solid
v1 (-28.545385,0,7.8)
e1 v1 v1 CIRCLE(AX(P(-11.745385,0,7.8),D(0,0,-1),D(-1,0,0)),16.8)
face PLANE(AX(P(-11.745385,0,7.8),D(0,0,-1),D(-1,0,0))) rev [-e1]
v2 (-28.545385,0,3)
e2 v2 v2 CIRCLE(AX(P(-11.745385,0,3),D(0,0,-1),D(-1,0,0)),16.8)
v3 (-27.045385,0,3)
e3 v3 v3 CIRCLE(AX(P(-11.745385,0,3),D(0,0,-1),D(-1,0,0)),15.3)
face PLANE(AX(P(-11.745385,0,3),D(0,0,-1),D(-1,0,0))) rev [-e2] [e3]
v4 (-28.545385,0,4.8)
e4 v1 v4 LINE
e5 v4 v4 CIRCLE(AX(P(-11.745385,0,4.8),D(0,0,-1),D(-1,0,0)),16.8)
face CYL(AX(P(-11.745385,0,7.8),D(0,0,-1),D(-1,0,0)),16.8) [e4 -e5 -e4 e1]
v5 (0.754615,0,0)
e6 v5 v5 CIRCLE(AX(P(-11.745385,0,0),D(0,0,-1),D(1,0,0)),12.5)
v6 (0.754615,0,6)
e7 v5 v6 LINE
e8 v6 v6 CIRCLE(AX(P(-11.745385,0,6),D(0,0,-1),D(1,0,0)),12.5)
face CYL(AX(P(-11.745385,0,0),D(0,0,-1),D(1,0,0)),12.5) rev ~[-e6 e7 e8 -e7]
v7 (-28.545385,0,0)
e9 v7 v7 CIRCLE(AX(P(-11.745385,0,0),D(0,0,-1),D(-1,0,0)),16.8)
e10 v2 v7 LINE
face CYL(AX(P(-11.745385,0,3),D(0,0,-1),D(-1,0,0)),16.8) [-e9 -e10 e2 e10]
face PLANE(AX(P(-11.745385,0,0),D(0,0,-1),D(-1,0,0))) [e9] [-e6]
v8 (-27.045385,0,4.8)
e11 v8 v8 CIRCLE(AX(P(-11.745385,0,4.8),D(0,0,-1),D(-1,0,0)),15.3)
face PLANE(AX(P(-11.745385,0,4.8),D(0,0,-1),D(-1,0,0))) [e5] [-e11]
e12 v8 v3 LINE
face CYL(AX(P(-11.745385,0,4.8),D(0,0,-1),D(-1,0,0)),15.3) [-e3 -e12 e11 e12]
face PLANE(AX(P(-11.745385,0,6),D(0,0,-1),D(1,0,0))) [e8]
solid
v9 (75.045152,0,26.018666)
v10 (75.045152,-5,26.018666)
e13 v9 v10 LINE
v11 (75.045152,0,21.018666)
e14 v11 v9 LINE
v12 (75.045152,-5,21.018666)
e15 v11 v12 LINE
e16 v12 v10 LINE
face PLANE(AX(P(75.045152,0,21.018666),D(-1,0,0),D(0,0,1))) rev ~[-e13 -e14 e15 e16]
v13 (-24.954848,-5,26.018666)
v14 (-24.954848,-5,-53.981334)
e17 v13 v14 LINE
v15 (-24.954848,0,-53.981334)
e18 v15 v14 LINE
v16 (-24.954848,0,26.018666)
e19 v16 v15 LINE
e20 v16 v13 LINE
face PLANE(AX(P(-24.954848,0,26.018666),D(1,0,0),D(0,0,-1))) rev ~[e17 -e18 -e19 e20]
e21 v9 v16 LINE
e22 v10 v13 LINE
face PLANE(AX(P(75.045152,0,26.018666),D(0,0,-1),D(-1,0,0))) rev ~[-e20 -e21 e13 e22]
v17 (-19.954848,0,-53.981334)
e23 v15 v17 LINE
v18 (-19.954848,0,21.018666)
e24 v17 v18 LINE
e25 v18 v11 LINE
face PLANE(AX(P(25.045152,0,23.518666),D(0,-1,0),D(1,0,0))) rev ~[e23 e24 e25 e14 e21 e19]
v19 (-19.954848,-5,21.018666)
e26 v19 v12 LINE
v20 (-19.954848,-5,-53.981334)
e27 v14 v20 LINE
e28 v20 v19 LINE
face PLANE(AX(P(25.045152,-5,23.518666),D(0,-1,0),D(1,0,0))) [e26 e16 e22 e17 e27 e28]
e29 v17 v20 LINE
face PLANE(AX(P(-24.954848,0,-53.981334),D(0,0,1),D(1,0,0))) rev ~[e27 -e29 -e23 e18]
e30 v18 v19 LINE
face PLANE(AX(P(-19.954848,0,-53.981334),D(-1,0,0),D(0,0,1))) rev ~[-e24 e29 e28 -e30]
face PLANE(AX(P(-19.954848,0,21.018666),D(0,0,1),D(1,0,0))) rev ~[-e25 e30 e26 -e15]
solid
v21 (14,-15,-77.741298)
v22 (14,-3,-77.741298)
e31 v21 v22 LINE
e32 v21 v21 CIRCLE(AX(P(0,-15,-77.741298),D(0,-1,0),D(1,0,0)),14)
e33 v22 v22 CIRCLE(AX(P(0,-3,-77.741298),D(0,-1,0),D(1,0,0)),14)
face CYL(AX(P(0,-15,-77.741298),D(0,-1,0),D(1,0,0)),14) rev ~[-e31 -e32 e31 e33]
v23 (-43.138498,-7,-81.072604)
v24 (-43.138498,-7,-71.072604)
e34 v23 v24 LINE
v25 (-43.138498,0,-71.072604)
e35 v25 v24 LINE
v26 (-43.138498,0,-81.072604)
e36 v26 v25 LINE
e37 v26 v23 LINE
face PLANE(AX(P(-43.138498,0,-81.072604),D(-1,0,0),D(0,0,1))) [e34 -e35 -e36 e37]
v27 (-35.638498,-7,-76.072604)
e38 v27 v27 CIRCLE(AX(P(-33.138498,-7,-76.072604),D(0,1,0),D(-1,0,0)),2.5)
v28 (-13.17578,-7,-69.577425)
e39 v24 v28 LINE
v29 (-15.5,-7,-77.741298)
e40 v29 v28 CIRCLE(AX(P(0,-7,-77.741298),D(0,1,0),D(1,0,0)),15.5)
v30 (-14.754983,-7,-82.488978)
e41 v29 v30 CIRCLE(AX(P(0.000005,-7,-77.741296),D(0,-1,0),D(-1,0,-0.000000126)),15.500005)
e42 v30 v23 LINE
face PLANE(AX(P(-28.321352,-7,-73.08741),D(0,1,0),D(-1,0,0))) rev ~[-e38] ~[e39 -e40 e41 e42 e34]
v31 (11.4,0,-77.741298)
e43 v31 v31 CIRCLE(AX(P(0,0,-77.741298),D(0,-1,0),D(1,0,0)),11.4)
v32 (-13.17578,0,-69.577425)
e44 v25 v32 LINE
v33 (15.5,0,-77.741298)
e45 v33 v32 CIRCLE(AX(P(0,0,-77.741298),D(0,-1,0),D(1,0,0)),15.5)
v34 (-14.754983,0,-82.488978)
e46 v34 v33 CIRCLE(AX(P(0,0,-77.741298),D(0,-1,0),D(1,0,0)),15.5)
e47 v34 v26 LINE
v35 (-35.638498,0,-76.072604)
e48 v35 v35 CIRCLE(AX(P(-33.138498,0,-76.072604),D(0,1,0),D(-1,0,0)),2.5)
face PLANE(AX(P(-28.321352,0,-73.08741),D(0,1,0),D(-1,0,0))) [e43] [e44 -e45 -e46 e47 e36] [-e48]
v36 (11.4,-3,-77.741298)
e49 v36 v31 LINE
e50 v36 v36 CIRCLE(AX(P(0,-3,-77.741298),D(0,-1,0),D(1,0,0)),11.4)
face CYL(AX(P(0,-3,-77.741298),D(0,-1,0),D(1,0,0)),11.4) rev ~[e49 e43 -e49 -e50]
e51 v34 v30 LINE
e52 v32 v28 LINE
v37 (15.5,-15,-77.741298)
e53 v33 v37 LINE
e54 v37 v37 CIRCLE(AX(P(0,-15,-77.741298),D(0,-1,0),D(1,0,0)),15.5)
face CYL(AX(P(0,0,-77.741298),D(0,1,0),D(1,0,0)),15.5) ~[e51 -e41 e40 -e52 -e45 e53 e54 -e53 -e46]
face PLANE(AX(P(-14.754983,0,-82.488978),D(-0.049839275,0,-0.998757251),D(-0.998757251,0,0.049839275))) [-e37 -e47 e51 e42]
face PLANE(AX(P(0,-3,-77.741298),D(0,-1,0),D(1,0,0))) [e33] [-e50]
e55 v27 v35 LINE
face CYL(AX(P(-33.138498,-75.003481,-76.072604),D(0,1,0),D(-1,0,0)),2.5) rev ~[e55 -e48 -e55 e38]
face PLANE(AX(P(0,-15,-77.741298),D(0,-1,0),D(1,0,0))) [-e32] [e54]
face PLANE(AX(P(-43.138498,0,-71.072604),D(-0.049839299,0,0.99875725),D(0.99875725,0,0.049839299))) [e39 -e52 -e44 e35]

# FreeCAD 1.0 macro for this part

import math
import FreeCAD as App
import Part
import Sketcher

V = App.Vector
Q = App.Units.Quantity

doc = App.newDocument("Part")
body = doc.addObject("PartDesign::Body", "Body")

# Sketch on XZ plane
sketch1 = body.newObject("Sketcher::SketchObject", "Sketch")
sketch1.AttachmentSupport = (doc.getObject("XZ_Plane"), [""])
sketch1.MapMode = "FlatFace"
sketch1.addGeometry([
    Part.LineSegment(V(-28.5, 3, 0), V(-28.5, 0, 0)),  # 0
    Part.LineSegment(V(-28.5, 0, 0), V(-11.7, 0, 0)),  # 1
    Part.LineSegment(V(-11.7, 0, 0), V(-11.7, 7.8, 0)),  # 2
    Part.LineSegment(V(-11.7, 7.8, 0), V(-28.5, 7.8, 0)),  # 3
    Part.LineSegment(V(-28.5, 7.8, 0), V(-28.5, 4.8, 0)),  # 4
    Part.LineSegment(V(-28.5, 4.8, 0), V(-27, 4.8, 0)),  # 5
    Part.LineSegment(V(-27, 4.8, 0), V(-27, 3, 0)),  # 6
    Part.LineSegment(V(-27, 3, 0), V(-28.5, 3, 0)),  # 7
], False)
sketch1.addGeometry(Part.LineSegment(V(-11.7, 7.8, 0), V(-11.7, 0, 0)), True)  # axis
sketch1.addConstraint([
    Sketcher.Constraint("Coincident", 0, 2, 1, 1),
    Sketcher.Constraint("Coincident", 1, 2, 2, 1),
    Sketcher.Constraint("Coincident", 2, 2, 3, 1),
    Sketcher.Constraint("Coincident", 3, 2, 4, 1),
    Sketcher.Constraint("Coincident", 4, 2, 5, 1),
    Sketcher.Constraint("Coincident", 5, 2, 6, 1),
    Sketcher.Constraint("Coincident", 6, 2, 7, 1),
    Sketcher.Constraint("Coincident", 7, 2, 0, 1),
    Sketcher.Constraint("Vertical", 0),
    Sketcher.Constraint("Horizontal", 1),
    Sketcher.Constraint("Vertical", 2),
    Sketcher.Constraint("Horizontal", 3),
    Sketcher.Constraint("Vertical", 4),
    Sketcher.Constraint("Horizontal", 5),
    Sketcher.Constraint("Vertical", 6),
    Sketcher.Constraint("Horizontal", 7),
    Sketcher.Constraint("Vertical", 8),
    Sketcher.Constraint("Coincident", 8, 1, 2, 2),
    Sketcher.Constraint("PointOnObject", 0, 2, -1),
    Sketcher.Constraint("PointOnObject", 8, 2, -1),
    Sketcher.Constraint("Vertical", 0, 2, 3, 2),
    Sketcher.Constraint("Equal", 0, 4),
    Sketcher.Constraint("DistanceY", 0, 2, 0, 1, Q("3 mm")),
    Sketcher.Constraint("DistanceX", 1, 1, 1, 2, Q("16.8 mm")),
    Sketcher.Constraint("DistanceX", 5, 1, 5, 2, Q("1.5 mm")),
    Sketcher.Constraint("DistanceY", 2, 1, 2, 2, Q("7.8 mm")),
    Sketcher.Constraint("DistanceX", 0, 2, -1, 1, Q("28.545385 mm")),
])
revolution = body.newObject("PartDesign::Revolution", "Revolution")
revolution.Profile = sketch1
revolution.ReferenceAxis = (sketch1, ["Axis0"])
revolution.Angle = 360

# Sketch on XY plane
sketch2 = body.newObject("Sketcher::SketchObject", "Sketch001")
sketch2.AttachmentSupport = (doc.getObject("XY_Plane"), [""])
sketch2.MapMode = "FlatFace"
sketch2.addGeometry(Part.Circle(V(-12, 0, 0), V(0, 0, 1), 12), False)
sketch2.addConstraint([
    Sketcher.Constraint("PointOnObject", 0, 3, -1),
    Sketcher.Constraint("Diameter", 0, Q("25 mm")),
    Sketcher.Constraint("DistanceX", 0, 3, -1, 1, Q("11.745385 mm")),
])
pocket1 = body.newObject("PartDesign::Pocket", "Pocket")
pocket1.Profile = sketch2
pocket1.Length = 6
pocket1.Reversed = True
body2 = doc.addObject("PartDesign::Body", "Body001")

# Sketch on XZ plane
sketch3 = body2.newObject("Sketcher::SketchObject", "Sketch002")
sketch3.AttachmentSupport = (doc.getObject("XZ_Plane001"), [""])
sketch3.MapMode = "FlatFace"
sketch3.addGeometry(Part.Circle(V(0, -78, 0), V(0, 0, 1), 16), False)
sketch3.addConstraint([
    Sketcher.Constraint("PointOnObject", 0, 3, -2),
    Sketcher.Constraint("Diameter", 0, Q("31 mm")),
    Sketcher.Constraint("DistanceY", 0, 3, -1, 1, Q("77.741298 mm")),
])
pad1 = body2.newObject("PartDesign::Pad", "Pad")
pad1.Profile = sketch3
pad1.Length = 15

# Sketch on XZ plane
sketch4 = body2.newObject("Sketcher::SketchObject", "Sketch003")
sketch4.AttachmentSupport = (doc.getObject("XZ_Plane001"), [""])
sketch4.MapMode = "FlatFace"
sketch4.AttachmentOffset = App.Placement(V(0, 0, 15), App.Rotation())
sketch4.addGeometry(Part.Circle(V(0, -78, 0), V(0, 0, 1), 14), False)
sketch4.addConstraint([
    Sketcher.Constraint("PointOnObject", 0, 3, -2),
    Sketcher.Constraint("Diameter", 0, Q("28 mm")),
    Sketcher.Constraint("DistanceY", 0, 3, -1, 1, Q("77.741298 mm")),
])
pocket2 = body2.newObject("PartDesign::Pocket", "Pocket001")
pocket2.Profile = sketch4
pocket2.Length = 12

# Sketch on XZ plane
sketch5 = body2.newObject("Sketcher::SketchObject", "Sketch004")
sketch5.AttachmentSupport = (doc.getObject("XZ_Plane001"), [""])
sketch5.MapMode = "FlatFace"
sketch5.addGeometry([
    Part.LineSegment(V(-43.1, -71.1, 0), V(-13.2, -69.6, 0)),  # 0
    Part.ArcOfCircle(Part.Circle(V(0, -77.7, 0), V(0, 0, 1), 15.5), math.radians(148), math.radians(174)),  # 1
    Part.ArcOfCircle(Part.Circle(V(0, -77.7, 0), V(0, 0, 1), 15.5), math.radians(173.82), math.radians(180)),  # 2
    Part.ArcOfCircle(Part.Circle(V(0, -77.7, 0), V(0, 0, 1), 15.5), math.radians(-180), math.radians(-162.16)),  # 3
    Part.LineSegment(V(-14.8, -82.5, 0), V(-43.1, -81.1, 0)),  # 4
    Part.LineSegment(V(-43.1, -81.1, 0), V(-43.1, -71.1, 0)),  # 5
], False)
sketch5.addConstraint([
    Sketcher.Constraint("Coincident", 0, 2, 1, 1),
    Sketcher.Constraint("Tangent", 1, 2, 2, 1),
    Sketcher.Constraint("Tangent", 2, 2, 3, 1),
    Sketcher.Constraint("Coincident", 3, 2, 4, 1),
    Sketcher.Constraint("Coincident", 4, 2, 5, 1),
    Sketcher.Constraint("Coincident", 5, 2, 0, 1),
    Sketcher.Constraint("Vertical", 5),
    Sketcher.Constraint("Coincident", 3, 3, 1, 3),
    Sketcher.Constraint("Horizontal", 3, 3, 2, 2),
    Sketcher.Constraint("DistanceY", 5, 1, 5, 2, Q("10 mm")),
    Sketcher.Constraint("Distance", 0, Q("30.000001 mm")),
    Sketcher.Constraint("DistanceY", 4, 2, 1, 2, Q("5 mm")),
    Sketcher.Constraint("DistanceX", 2, 2, -1, 1, Q("15.5 mm")),
    Sketcher.Constraint("Radius", 1, Q("15.500006 mm")),
    Sketcher.Constraint("DistanceY", 1, 3, -1, 1, Q("77.741299 mm")),
    Sketcher.Constraint("DistanceY", 2, 3, 1, 2, Q("1.668698 mm")),
    Sketcher.Constraint("DistanceX", 4, 2, 2, 2, Q("27.638498 mm")),
    Sketcher.Constraint("DistanceY", 3, 2, -1, 1, Q("82.488978 mm")),
])
pad2 = body2.newObject("PartDesign::Pad", "Pad001")
pad2.Profile = sketch5
pad2.Length = 7

# Sketch on XZ plane
sketch6 = body2.newObject("Sketcher::SketchObject", "Sketch005")
sketch6.AttachmentSupport = (doc.getObject("XZ_Plane001"), [""])
sketch6.MapMode = "FlatFace"
sketch6.AttachmentOffset = App.Placement(V(0, 0, 3), App.Rotation())
sketch6.addGeometry(Part.Circle(V(0, -78, 0), V(0, 0, 1), 11), False)
sketch6.addConstraint([
    Sketcher.Constraint("PointOnObject", 0, 3, -2),
    Sketcher.Constraint("Diameter", 0, Q("22.8 mm")),
    Sketcher.Constraint("DistanceY", 0, 3, -1, 1, Q("77.741298 mm")),
])
pocket3 = body2.newObject("PartDesign::Pocket", "Pocket002")
pocket3.Profile = sketch6
pocket3.Length = 25

# Sketch on XZ plane
sketch7 = body2.newObject("Sketcher::SketchObject", "Sketch006")
sketch7.AttachmentSupport = (doc.getObject("XZ_Plane001"), [""])
sketch7.MapMode = "FlatFace"
sketch7.AttachmentOffset = App.Placement(V(0, 0, 7), App.Rotation())
sketch7.addGeometry(Part.Circle(V(-33.1, -76.1, 0), V(0, 0, 1), 2.5), False)
sketch7.addConstraint([
    Sketcher.Constraint("Diameter", 0, Q("5 mm")),
    Sketcher.Constraint("DistanceX", 0, 3, -1, 1, Q("33.138498 mm")),
    Sketcher.Constraint("DistanceY", 0, 3, -1, 1, Q("76.072604 mm")),
])
doc.recompute()
hole = body2.newObject("PartDesign::Hole", "Hole")
hole.Profile = sketch7
hole.ThreadType = "None"
hole.Diameter = 5
hole.DepthType = "ThroughAll"
body3 = doc.addObject("PartDesign::Body", "Body002")

# Sketch on XZ plane
sketch8 = body3.newObject("Sketcher::SketchObject", "Sketch007")
sketch8.AttachmentSupport = (doc.getObject("XZ_Plane002"), [""])
sketch8.MapMode = "FlatFace"
sketch8.addGeometry([
    Part.LineSegment(V(75, 26, 0), V(-25, 26, 0)),  # 0
    Part.LineSegment(V(-25, 26, 0), V(-25, -54, 0)),  # 1
    Part.LineSegment(V(-25, -54, 0), V(-20, -54, 0)),  # 2
    Part.LineSegment(V(-20, -54, 0), V(-20, 21, 0)),  # 3
    Part.LineSegment(V(-20, 21, 0), V(75, 21, 0)),  # 4
    Part.LineSegment(V(75, 21, 0), V(75, 26, 0)),  # 5
], False)
sketch8.addConstraint([
    Sketcher.Constraint("Coincident", 0, 2, 1, 1),
    Sketcher.Constraint("Coincident", 1, 2, 2, 1),
    Sketcher.Constraint("Coincident", 2, 2, 3, 1),
    Sketcher.Constraint("Coincident", 3, 2, 4, 1),
    Sketcher.Constraint("Coincident", 4, 2, 5, 1),
    Sketcher.Constraint("Coincident", 5, 2, 0, 1),
    Sketcher.Constraint("Horizontal", 0),
    Sketcher.Constraint("Vertical", 1),
    Sketcher.Constraint("Horizontal", 2),
    Sketcher.Constraint("Vertical", 3),
    Sketcher.Constraint("Horizontal", 4),
    Sketcher.Constraint("Vertical", 5),
    Sketcher.Constraint("Equal", 2, 5),
    Sketcher.Constraint("DistanceX", 0, 2, 0, 1, Q("100 mm")),
    Sketcher.Constraint("DistanceX", 2, 1, 2, 2, Q("5 mm")),
    Sketcher.Constraint("DistanceY", 1, 2, 1, 1, Q("80 mm")),
    Sketcher.Constraint("DistanceX", -1, 1, 4, 2, Q("75.045152 mm")),
    Sketcher.Constraint("DistanceY", -1, 1, 0, 2, Q("26.018666 mm")),
])
pad3 = body3.newObject("PartDesign::Pad", "Pad002")
pad3.Profile = sketch8
pad3.Length = 5

doc.recompute()
